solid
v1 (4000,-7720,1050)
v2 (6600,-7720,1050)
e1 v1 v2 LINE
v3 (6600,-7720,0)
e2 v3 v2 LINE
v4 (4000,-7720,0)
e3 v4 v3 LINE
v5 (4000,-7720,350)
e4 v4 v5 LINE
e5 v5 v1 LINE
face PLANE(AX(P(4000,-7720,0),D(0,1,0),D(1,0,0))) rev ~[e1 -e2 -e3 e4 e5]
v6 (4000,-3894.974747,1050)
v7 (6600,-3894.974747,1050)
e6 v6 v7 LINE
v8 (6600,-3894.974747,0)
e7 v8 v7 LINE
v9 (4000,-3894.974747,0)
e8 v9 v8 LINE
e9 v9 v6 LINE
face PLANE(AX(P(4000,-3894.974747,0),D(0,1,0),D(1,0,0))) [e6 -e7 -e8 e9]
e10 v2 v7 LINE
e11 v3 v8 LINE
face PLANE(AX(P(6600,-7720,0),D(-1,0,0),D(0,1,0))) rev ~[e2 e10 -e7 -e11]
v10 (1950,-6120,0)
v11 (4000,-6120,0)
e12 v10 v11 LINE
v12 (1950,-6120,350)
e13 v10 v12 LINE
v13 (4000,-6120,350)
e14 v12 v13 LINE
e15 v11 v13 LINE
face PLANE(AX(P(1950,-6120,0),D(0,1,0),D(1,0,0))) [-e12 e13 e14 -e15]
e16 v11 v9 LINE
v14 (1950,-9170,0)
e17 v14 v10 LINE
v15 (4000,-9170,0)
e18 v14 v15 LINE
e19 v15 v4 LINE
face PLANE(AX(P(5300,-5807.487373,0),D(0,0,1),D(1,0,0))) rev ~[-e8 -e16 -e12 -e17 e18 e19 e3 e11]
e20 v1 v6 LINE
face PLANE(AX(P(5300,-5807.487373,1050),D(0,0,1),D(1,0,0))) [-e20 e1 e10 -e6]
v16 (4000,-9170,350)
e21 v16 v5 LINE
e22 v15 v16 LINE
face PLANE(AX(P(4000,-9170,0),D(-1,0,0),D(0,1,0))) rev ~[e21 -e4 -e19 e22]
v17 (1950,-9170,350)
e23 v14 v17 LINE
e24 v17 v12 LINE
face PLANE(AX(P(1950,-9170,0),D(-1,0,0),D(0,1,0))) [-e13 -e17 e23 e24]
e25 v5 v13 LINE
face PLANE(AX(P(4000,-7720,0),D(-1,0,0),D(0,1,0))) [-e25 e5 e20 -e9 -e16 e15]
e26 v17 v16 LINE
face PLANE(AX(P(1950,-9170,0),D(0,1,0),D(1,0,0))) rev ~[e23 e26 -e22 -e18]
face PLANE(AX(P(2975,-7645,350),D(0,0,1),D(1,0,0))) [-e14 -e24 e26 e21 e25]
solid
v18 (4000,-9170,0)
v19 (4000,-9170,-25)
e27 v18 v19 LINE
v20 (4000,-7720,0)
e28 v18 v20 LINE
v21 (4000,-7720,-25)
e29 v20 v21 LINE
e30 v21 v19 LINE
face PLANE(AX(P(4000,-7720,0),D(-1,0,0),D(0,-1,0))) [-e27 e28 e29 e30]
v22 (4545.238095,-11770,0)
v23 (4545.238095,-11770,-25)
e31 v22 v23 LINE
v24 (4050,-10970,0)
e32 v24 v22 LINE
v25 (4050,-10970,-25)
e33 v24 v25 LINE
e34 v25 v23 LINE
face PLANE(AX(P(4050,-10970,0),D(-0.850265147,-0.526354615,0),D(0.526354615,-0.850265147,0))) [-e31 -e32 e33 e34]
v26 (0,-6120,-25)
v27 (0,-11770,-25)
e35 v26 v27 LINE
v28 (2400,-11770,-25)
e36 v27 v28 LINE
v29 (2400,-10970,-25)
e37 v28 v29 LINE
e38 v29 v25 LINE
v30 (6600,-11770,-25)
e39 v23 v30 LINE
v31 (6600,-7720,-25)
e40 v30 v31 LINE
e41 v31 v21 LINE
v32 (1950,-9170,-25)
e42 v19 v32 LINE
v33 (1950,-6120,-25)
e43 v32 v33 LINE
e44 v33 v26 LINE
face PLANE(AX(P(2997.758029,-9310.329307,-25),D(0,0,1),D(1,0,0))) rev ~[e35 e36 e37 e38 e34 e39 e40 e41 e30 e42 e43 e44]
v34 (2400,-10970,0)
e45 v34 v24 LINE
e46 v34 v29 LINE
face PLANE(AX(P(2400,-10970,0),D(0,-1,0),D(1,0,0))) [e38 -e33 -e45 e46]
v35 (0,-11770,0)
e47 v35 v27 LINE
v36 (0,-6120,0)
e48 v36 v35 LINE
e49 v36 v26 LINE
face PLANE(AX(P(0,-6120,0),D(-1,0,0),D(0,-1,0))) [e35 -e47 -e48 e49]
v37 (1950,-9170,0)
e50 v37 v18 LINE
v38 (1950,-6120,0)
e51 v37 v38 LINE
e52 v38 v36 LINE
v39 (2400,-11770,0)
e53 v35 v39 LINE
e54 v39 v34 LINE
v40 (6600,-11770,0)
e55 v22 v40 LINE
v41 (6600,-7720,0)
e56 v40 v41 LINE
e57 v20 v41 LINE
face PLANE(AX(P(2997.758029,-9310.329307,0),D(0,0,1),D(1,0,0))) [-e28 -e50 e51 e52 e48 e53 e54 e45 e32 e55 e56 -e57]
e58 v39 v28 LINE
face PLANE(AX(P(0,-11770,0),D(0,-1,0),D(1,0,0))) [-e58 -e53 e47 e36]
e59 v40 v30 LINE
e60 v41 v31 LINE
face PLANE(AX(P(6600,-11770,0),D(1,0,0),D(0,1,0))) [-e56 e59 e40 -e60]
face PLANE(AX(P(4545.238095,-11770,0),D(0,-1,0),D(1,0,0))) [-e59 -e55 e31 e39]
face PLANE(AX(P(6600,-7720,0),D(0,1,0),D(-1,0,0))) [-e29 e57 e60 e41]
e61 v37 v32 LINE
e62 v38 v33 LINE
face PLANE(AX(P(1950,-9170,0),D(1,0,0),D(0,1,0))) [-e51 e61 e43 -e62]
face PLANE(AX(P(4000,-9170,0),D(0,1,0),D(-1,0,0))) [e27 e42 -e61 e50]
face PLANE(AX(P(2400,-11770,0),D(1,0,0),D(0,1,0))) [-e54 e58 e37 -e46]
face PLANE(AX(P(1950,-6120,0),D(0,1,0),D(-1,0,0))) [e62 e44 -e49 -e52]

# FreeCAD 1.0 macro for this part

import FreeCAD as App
import Part
import Sketcher
Q = App.Units.Quantity


def add_polygon(sketch, points):
    """Adds a closed chain of lines whose ends are joined by coincident constraints."""
    first, n = sketch.GeometryCount, len(points)
    for a, b in zip(points, points[1:] + points[:1]):
        sketch.addGeometry(Part.LineSegment(App.Vector(*a, 0), App.Vector(*b, 0)), False)
    for i in range(n):
        sketch.addConstraint(Sketcher.Constraint("Coincident", first + i, 2, first + (i + 1) % n, 1))

doc = App.newDocument("Part")
body = doc.addObject("PartDesign::Body", "Body")
body.AllowCompound = True

sketch1 = body.newObject("Sketcher::SketchObject", "Sketch")
sketch1.AttachmentSupport = (doc.getObject("XY_Plane"), [""])
sketch1.MapMode = "FlatFace"
add_polygon(sketch1, [(1950, -6120), (1950, -9170), (4000, -9170), (4000, -6120)])
sketch1.addConstraint(Sketcher.Constraint("Vertical", 0))
sketch1.addConstraint(Sketcher.Constraint("Horizontal", 1))
sketch1.addConstraint(Sketcher.Constraint("Vertical", 2))
sketch1.addConstraint(Sketcher.Constraint("Horizontal", 3))
sketch1.addConstraint(Sketcher.Constraint("DistanceX", 1, 1, 1, 2, Q("2050 mm")))
sketch1.addConstraint(Sketcher.Constraint("DistanceY", 0, 2, 0, 1, Q("3050 mm")))
sketch1.addConstraint(Sketcher.Constraint("DistanceX", -1, 1, 0, 2, Q("1950 mm")))
sketch1.addConstraint(Sketcher.Constraint("DistanceY", 0, 2, -1, 1, Q("9170 mm")))
pad1 = body.newObject("PartDesign::Pad", "Pad")
pad1.Profile = sketch1
pad1.Length = 350

sketch2 = body.newObject("Sketcher::SketchObject", "Sketch001")
sketch2.AttachmentSupport = (doc.getObject("XY_Plane"), [""])
sketch2.MapMode = "FlatFace"
add_polygon(sketch2, [(4000, -3894.974747), (4000, -7720), (6600, -7720), (6600, -3894.974747)])
sketch2.addConstraint(Sketcher.Constraint("Vertical", 0))
sketch2.addConstraint(Sketcher.Constraint("Horizontal", 1))
sketch2.addConstraint(Sketcher.Constraint("Vertical", 2))
sketch2.addConstraint(Sketcher.Constraint("Horizontal", 3))
sketch2.addConstraint(Sketcher.Constraint("DistanceX", 1, 1, 1, 2, Q("2600 mm")))
sketch2.addConstraint(Sketcher.Constraint("DistanceX", -1, 1, 0, 2, Q("4000 mm")))
sketch2.addConstraint(Sketcher.Constraint("DistanceY", 0, 2, -1, 1, Q("7720 mm")))
sketch2.addConstraint(Sketcher.Constraint("DistanceY", 0, 2, 0, 1, Q("3825.025253 mm")))
pad2 = body.newObject("PartDesign::Pad", "Pad001")
pad2.Profile = sketch2
pad2.Length = 1050

sketch3 = body.newObject("Sketcher::SketchObject", "Sketch002")
sketch3.AttachmentSupport = (doc.getObject("XY_Plane"), [""])
sketch3.MapMode = "FlatFace"
add_polygon(sketch3, [(1950, -6120), (0, -6120), (0, -11770), (2400, -11770), (2400, -10970), (4050, -10970), (4545.238095, -11770), (6600, -11770), (6600, -7720), (4000, -7720), (4000, -9170), (1950, -9170)])
sketch3.addConstraint(Sketcher.Constraint("Horizontal", 0))
sketch3.addConstraint(Sketcher.Constraint("Vertical", 1))
sketch3.addConstraint(Sketcher.Constraint("Horizontal", 2))
sketch3.addConstraint(Sketcher.Constraint("Vertical", 3))
sketch3.addConstraint(Sketcher.Constraint("Horizontal", 4))
sketch3.addConstraint(Sketcher.Constraint("Horizontal", 6))
sketch3.addConstraint(Sketcher.Constraint("Vertical", 7))
sketch3.addConstraint(Sketcher.Constraint("Horizontal", 8))
sketch3.addConstraint(Sketcher.Constraint("Vertical", 9))
sketch3.addConstraint(Sketcher.Constraint("Horizontal", 10))
sketch3.addConstraint(Sketcher.Constraint("Vertical", 11))
sketch3.addConstraint(Sketcher.Constraint("PointOnObject", 0, 2, -2))
sketch3.addConstraint(Sketcher.Constraint("Horizontal", 2, 2, 5, 2))
sketch3.addConstraint(Sketcher.Constraint("DistanceX", 0, 2, 0, 1, Q("1950 mm")))
sketch3.addConstraint(Sketcher.Constraint("DistanceX", 2, 1, 2, 2, Q("2400 mm")))
sketch3.addConstraint(Sketcher.Constraint("DistanceX", 4, 1, 4, 2, Q("1650 mm")))
sketch3.addConstraint(Sketcher.Constraint("DistanceX", 8, 2, 8, 1, Q("2600 mm")))
sketch3.addConstraint(Sketcher.Constraint("DistanceX", 10, 2, 10, 1, Q("2050 mm")))
sketch3.addConstraint(Sketcher.Constraint("DistanceY", 1, 2, 1, 1, Q("5650 mm")))
sketch3.addConstraint(Sketcher.Constraint("DistanceY", 3, 1, 3, 2, Q("800 mm")))
sketch3.addConstraint(Sketcher.Constraint("DistanceY", 7, 1, 7, 2, Q("4050 mm")))
sketch3.addConstraint(Sketcher.Constraint("DistanceY", 9, 2, 9, 1, Q("1450 mm")))
sketch3.addConstraint(Sketcher.Constraint("DistanceY", 0, 2, -1, 1, Q("6120 mm")))
sketch3.addConstraint(Sketcher.Constraint("DistanceX", 6, 1, 6, 2, Q("2054.761905 mm")))
pad3 = body.newObject("PartDesign::Pad", "Pad002")
pad3.Profile = sketch3
pad3.Length = 25
pad3.Reversed = True

doc.recompute()
